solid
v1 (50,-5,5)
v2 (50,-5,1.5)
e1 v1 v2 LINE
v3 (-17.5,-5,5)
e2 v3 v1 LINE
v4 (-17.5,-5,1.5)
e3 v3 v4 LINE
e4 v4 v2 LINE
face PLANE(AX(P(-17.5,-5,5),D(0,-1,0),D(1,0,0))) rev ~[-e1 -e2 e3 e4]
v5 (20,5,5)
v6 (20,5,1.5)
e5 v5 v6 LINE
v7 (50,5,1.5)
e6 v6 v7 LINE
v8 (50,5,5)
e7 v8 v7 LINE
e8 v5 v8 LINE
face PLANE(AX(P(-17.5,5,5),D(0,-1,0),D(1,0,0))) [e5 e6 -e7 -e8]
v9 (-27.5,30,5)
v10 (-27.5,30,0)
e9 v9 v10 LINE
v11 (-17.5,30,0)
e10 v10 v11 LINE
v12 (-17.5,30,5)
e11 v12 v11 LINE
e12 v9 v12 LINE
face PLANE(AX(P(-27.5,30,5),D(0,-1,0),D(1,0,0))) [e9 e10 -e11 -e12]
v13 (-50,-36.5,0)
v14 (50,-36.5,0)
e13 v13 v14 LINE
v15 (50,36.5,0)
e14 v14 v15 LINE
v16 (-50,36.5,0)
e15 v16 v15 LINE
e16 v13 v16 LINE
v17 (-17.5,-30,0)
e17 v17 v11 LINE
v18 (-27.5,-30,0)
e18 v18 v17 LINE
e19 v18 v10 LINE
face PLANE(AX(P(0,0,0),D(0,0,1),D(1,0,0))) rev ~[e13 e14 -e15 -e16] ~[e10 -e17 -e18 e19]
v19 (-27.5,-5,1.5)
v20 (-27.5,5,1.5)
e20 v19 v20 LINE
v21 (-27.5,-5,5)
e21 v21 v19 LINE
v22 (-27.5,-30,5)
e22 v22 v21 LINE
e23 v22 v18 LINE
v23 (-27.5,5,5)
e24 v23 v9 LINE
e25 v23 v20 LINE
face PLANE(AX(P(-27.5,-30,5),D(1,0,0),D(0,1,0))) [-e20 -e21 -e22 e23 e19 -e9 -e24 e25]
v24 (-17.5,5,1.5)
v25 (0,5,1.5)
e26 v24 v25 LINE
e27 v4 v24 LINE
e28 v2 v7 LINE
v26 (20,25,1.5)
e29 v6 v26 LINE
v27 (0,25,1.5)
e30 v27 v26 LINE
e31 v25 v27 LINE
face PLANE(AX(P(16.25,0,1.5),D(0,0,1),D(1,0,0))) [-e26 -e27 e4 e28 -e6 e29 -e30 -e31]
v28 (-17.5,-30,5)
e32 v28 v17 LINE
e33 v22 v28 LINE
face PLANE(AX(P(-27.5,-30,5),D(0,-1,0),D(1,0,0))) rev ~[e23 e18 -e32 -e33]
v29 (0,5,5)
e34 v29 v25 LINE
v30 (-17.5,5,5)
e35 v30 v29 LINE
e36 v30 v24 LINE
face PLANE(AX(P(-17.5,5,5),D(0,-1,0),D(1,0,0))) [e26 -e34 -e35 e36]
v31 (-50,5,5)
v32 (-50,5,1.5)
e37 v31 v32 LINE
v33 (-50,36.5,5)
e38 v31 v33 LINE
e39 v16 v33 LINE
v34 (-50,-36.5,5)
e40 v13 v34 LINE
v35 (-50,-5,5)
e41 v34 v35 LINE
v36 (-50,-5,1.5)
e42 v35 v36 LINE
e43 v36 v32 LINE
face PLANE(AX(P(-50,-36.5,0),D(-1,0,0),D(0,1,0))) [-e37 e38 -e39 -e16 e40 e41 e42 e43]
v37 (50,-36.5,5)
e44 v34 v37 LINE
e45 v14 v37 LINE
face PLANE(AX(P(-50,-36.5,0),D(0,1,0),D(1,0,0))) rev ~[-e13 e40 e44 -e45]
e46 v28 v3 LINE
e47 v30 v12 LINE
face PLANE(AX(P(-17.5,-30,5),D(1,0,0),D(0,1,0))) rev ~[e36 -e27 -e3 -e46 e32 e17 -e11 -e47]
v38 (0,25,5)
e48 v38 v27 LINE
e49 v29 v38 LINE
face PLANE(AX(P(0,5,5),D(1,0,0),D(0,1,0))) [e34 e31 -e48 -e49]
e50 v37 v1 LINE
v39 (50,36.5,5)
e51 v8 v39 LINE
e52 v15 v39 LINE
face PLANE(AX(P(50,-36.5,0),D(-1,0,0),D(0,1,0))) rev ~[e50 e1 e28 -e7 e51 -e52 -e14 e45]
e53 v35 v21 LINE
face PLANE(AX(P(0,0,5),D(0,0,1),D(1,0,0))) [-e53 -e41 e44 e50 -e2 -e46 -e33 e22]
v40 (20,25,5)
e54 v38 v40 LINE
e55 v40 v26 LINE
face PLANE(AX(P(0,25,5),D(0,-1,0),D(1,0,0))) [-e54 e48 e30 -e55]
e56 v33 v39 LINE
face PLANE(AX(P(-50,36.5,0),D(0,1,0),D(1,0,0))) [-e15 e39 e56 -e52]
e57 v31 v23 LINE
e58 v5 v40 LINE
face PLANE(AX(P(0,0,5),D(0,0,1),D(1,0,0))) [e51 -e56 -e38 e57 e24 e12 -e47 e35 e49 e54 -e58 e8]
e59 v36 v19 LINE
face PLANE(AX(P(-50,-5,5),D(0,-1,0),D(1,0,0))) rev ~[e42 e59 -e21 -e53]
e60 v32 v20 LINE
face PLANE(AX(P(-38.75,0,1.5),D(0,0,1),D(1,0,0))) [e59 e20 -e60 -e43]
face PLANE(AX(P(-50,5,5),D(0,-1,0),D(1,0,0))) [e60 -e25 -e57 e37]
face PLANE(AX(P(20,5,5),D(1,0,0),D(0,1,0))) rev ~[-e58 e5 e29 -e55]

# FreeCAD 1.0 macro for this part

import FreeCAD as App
import Part
import Sketcher

V = App.Vector

doc = App.newDocument("Part")
body = doc.addObject("PartDesign::Body", "Body")

# Sketch on XY plane
sketch1 = body.newObject("Sketcher::SketchObject", "Sketch")
sketch1.AttachmentSupport = (doc.getObject("XY_Plane"), [""])
sketch1.MapMode = "FlatFace"
sketch1.addGeometry(Part.LineSegment(V(-50, 36, 0), V(-50, -36, 0)), False)
sketch1.addGeometry(Part.LineSegment(V(-50, -36, 0), V(50, -36, 0)), False)
sketch1.addGeometry(Part.LineSegment(V(50, -36, 0), V(50, 36, 0)), False)
sketch1.addGeometry(Part.LineSegment(V(50, 36, 0), V(-50, 36, 0)), False)
sketch1.addConstraint(Sketcher.Constraint("Coincident", 0, 2, 1, 1))
sketch1.addConstraint(Sketcher.Constraint("Coincident", 1, 2, 2, 1))
sketch1.addConstraint(Sketcher.Constraint("Coincident", 2, 2, 3, 1))
sketch1.addConstraint(Sketcher.Constraint("Coincident", 3, 2, 0, 1))
sketch1.addConstraint(Sketcher.Constraint("Vertical", 0))
sketch1.addConstraint(Sketcher.Constraint("Horizontal", 1))
sketch1.addConstraint(Sketcher.Constraint("Vertical", 2))
sketch1.addConstraint(Sketcher.Constraint("Horizontal", 3))
sketch1.addConstraint(Sketcher.Constraint("Symmetric", 0, 2, 2, 2, -1, 1))
sketch1.addConstraint(Sketcher.Constraint("DistanceX", 1, 1, 1, 2, 100.0))
sketch1.addConstraint(Sketcher.Constraint("DistanceY", 0, 2, 0, 1, 73.0))
pad1 = body.newObject("PartDesign::Pad", "Pad")
pad1.Profile = sketch1
pad1.Length = 5

# Sketch on XY plane
sketch2 = body.newObject("Sketcher::SketchObject", "Sketch001")
sketch2.AttachmentSupport = (doc.getObject("XY_Plane"), [""])
sketch2.MapMode = "FlatFace"
sketch2.AttachmentOffset = App.Placement(V(0, 0, 5), App.Rotation())
sketch2.addGeometry(Part.LineSegment(V(-50, 5, 0), V(-50, -5, 0)), False)
sketch2.addGeometry(Part.LineSegment(V(-50, -5, 0), V(-28, -5, 0)), False)
sketch2.addGeometry(Part.LineSegment(V(-28, -5, 0), V(-28, 5, 0)), False)
sketch2.addGeometry(Part.LineSegment(V(-28, 5, 0), V(-50, 5, 0)), False)
sketch2.addConstraint(Sketcher.Constraint("Coincident", 0, 2, 1, 1))
sketch2.addConstraint(Sketcher.Constraint("Coincident", 1, 2, 2, 1))
sketch2.addConstraint(Sketcher.Constraint("Coincident", 2, 2, 3, 1))
sketch2.addConstraint(Sketcher.Constraint("Coincident", 3, 2, 0, 1))
sketch2.addConstraint(Sketcher.Constraint("Vertical", 0))
sketch2.addConstraint(Sketcher.Constraint("Horizontal", 1))
sketch2.addConstraint(Sketcher.Constraint("Vertical", 2))
sketch2.addConstraint(Sketcher.Constraint("Horizontal", 3))
sketch2.addConstraint(Sketcher.Constraint("DistanceY", 0, 2, 0, 1, 10.0))
sketch2.addConstraint(Sketcher.Constraint("DistanceX", 1, 1, 1, 2, 22.5))
sketch2.addConstraint(Sketcher.Constraint("DistanceX", 0, 2, -1, 1, 50.0))
sketch2.addConstraint(Sketcher.Constraint("DistanceY", 0, 2, -1, 1, 5.0))
pocket1 = body.newObject("PartDesign::Pocket", "Pocket")
pocket1.Profile = sketch2
pocket1.Length = 3.5

# Sketch on XY plane
sketch3 = body.newObject("Sketcher::SketchObject", "Sketch002")
sketch3.AttachmentSupport = (doc.getObject("XY_Plane"), [""])
sketch3.MapMode = "FlatFace"
sketch3.AttachmentOffset = App.Placement(V(0, 0, 5), App.Rotation())
sketch3.addGeometry(Part.LineSegment(V(-28, 30, 0), V(-28, -30, 0)), False)
sketch3.addGeometry(Part.LineSegment(V(-28, -30, 0), V(-18, -30, 0)), False)
sketch3.addGeometry(Part.LineSegment(V(-18, -30, 0), V(-18, 30, 0)), False)
sketch3.addGeometry(Part.LineSegment(V(-18, 30, 0), V(-28, 30, 0)), False)
sketch3.addConstraint(Sketcher.Constraint("Coincident", 0, 2, 1, 1))
sketch3.addConstraint(Sketcher.Constraint("Coincident", 1, 2, 2, 1))
sketch3.addConstraint(Sketcher.Constraint("Coincident", 2, 2, 3, 1))
sketch3.addConstraint(Sketcher.Constraint("Coincident", 3, 2, 0, 1))
sketch3.addConstraint(Sketcher.Constraint("Vertical", 0))
sketch3.addConstraint(Sketcher.Constraint("Horizontal", 1))
sketch3.addConstraint(Sketcher.Constraint("Vertical", 2))
sketch3.addConstraint(Sketcher.Constraint("Horizontal", 3))
sketch3.addConstraint(Sketcher.Constraint("DistanceX", 1, 1, 1, 2, 10.0))
sketch3.addConstraint(Sketcher.Constraint("DistanceY", 0, 2, 0, 1, 60.0))
sketch3.addConstraint(Sketcher.Constraint("DistanceY", 0, 2, -1, 1, 30.0))
sketch3.addConstraint(Sketcher.Constraint("DistanceX", 0, 2, -1, 1, 27.5))
pocket2 = body.newObject("PartDesign::Pocket", "Pocket001")
pocket2.Profile = sketch3
pocket2.Length = 5

# Sketch on XY plane
sketch4 = body.newObject("Sketcher::SketchObject", "Sketch003")
sketch4.AttachmentSupport = (doc.getObject("XY_Plane"), [""])
sketch4.MapMode = "FlatFace"
sketch4.AttachmentOffset = App.Placement(V(0, 0, 5), App.Rotation())
sketch4.addGeometry(Part.LineSegment(V(-18, 5, 0), V(-18, -5, 0)), False)
sketch4.addGeometry(Part.LineSegment(V(-18, -5, 0), V(50, -5, 0)), False)
sketch4.addGeometry(Part.LineSegment(V(50, -5, 0), V(50, 5, 0)), False)
sketch4.addGeometry(Part.LineSegment(V(50, 5, 0), V(-18, 5, 0)), False)
sketch4.addConstraint(Sketcher.Constraint("Coincident", 0, 2, 1, 1))
sketch4.addConstraint(Sketcher.Constraint("Coincident", 1, 2, 2, 1))
sketch4.addConstraint(Sketcher.Constraint("Coincident", 2, 2, 3, 1))
sketch4.addConstraint(Sketcher.Constraint("Coincident", 3, 2, 0, 1))
sketch4.addConstraint(Sketcher.Constraint("Vertical", 0))
sketch4.addConstraint(Sketcher.Constraint("Horizontal", 1))
sketch4.addConstraint(Sketcher.Constraint("Vertical", 2))
sketch4.addConstraint(Sketcher.Constraint("Horizontal", 3))
sketch4.addConstraint(Sketcher.Constraint("DistanceY", 0, 2, 0, 1, 10.0))
sketch4.addConstraint(Sketcher.Constraint("DistanceX", 1, 1, 1, 2, 67.5))
sketch4.addConstraint(Sketcher.Constraint("DistanceY", 0, 2, -1, 1, 5.0))
sketch4.addConstraint(Sketcher.Constraint("DistanceX", -1, 1, 1, 2, 50.0))
pocket3 = body.newObject("PartDesign::Pocket", "Pocket002")
pocket3.Profile = sketch4
pocket3.Length = 3.5

# Sketch on XY plane
sketch5 = body.newObject("Sketcher::SketchObject", "Sketch004")
sketch5.AttachmentSupport = (doc.getObject("XY_Plane"), [""])
sketch5.MapMode = "FlatFace"
sketch5.AttachmentOffset = App.Placement(V(0, 0, 5), App.Rotation())
sketch5.addGeometry(Part.LineSegment(V(0, 25, 0), V(0, 5, 0)), False)
sketch5.addGeometry(Part.LineSegment(V(0, 5, 0), V(20, 5, 0)), False)
sketch5.addGeometry(Part.LineSegment(V(20, 5, 0), V(20, 25, 0)), False)
sketch5.addGeometry(Part.LineSegment(V(20, 25, 0), V(0, 25, 0)), False)
sketch5.addConstraint(Sketcher.Constraint("Coincident", 0, 2, 1, 1))
sketch5.addConstraint(Sketcher.Constraint("Coincident", 1, 2, 2, 1))
sketch5.addConstraint(Sketcher.Constraint("Coincident", 2, 2, 3, 1))
sketch5.addConstraint(Sketcher.Constraint("Coincident", 3, 2, 0, 1))
sketch5.addConstraint(Sketcher.Constraint("Vertical", 0))
sketch5.addConstraint(Sketcher.Constraint("Horizontal", 1))
sketch5.addConstraint(Sketcher.Constraint("Vertical", 2))
sketch5.addConstraint(Sketcher.Constraint("Horizontal", 3))
sketch5.addConstraint(Sketcher.Constraint("PointOnObject", 0, 2, -2))
sketch5.addConstraint(Sketcher.Constraint("Equal", 3, 0))
sketch5.addConstraint(Sketcher.Constraint("DistanceX", 1, 1, 1, 2, 20.0))
sketch5.addConstraint(Sketcher.Constraint("DistanceY", -1, 1, 0, 2, 5.0))
pocket4 = body.newObject("PartDesign::Pocket", "Pocket003")
pocket4.Profile = sketch5
pocket4.Length = 3.5

doc.recompute()
